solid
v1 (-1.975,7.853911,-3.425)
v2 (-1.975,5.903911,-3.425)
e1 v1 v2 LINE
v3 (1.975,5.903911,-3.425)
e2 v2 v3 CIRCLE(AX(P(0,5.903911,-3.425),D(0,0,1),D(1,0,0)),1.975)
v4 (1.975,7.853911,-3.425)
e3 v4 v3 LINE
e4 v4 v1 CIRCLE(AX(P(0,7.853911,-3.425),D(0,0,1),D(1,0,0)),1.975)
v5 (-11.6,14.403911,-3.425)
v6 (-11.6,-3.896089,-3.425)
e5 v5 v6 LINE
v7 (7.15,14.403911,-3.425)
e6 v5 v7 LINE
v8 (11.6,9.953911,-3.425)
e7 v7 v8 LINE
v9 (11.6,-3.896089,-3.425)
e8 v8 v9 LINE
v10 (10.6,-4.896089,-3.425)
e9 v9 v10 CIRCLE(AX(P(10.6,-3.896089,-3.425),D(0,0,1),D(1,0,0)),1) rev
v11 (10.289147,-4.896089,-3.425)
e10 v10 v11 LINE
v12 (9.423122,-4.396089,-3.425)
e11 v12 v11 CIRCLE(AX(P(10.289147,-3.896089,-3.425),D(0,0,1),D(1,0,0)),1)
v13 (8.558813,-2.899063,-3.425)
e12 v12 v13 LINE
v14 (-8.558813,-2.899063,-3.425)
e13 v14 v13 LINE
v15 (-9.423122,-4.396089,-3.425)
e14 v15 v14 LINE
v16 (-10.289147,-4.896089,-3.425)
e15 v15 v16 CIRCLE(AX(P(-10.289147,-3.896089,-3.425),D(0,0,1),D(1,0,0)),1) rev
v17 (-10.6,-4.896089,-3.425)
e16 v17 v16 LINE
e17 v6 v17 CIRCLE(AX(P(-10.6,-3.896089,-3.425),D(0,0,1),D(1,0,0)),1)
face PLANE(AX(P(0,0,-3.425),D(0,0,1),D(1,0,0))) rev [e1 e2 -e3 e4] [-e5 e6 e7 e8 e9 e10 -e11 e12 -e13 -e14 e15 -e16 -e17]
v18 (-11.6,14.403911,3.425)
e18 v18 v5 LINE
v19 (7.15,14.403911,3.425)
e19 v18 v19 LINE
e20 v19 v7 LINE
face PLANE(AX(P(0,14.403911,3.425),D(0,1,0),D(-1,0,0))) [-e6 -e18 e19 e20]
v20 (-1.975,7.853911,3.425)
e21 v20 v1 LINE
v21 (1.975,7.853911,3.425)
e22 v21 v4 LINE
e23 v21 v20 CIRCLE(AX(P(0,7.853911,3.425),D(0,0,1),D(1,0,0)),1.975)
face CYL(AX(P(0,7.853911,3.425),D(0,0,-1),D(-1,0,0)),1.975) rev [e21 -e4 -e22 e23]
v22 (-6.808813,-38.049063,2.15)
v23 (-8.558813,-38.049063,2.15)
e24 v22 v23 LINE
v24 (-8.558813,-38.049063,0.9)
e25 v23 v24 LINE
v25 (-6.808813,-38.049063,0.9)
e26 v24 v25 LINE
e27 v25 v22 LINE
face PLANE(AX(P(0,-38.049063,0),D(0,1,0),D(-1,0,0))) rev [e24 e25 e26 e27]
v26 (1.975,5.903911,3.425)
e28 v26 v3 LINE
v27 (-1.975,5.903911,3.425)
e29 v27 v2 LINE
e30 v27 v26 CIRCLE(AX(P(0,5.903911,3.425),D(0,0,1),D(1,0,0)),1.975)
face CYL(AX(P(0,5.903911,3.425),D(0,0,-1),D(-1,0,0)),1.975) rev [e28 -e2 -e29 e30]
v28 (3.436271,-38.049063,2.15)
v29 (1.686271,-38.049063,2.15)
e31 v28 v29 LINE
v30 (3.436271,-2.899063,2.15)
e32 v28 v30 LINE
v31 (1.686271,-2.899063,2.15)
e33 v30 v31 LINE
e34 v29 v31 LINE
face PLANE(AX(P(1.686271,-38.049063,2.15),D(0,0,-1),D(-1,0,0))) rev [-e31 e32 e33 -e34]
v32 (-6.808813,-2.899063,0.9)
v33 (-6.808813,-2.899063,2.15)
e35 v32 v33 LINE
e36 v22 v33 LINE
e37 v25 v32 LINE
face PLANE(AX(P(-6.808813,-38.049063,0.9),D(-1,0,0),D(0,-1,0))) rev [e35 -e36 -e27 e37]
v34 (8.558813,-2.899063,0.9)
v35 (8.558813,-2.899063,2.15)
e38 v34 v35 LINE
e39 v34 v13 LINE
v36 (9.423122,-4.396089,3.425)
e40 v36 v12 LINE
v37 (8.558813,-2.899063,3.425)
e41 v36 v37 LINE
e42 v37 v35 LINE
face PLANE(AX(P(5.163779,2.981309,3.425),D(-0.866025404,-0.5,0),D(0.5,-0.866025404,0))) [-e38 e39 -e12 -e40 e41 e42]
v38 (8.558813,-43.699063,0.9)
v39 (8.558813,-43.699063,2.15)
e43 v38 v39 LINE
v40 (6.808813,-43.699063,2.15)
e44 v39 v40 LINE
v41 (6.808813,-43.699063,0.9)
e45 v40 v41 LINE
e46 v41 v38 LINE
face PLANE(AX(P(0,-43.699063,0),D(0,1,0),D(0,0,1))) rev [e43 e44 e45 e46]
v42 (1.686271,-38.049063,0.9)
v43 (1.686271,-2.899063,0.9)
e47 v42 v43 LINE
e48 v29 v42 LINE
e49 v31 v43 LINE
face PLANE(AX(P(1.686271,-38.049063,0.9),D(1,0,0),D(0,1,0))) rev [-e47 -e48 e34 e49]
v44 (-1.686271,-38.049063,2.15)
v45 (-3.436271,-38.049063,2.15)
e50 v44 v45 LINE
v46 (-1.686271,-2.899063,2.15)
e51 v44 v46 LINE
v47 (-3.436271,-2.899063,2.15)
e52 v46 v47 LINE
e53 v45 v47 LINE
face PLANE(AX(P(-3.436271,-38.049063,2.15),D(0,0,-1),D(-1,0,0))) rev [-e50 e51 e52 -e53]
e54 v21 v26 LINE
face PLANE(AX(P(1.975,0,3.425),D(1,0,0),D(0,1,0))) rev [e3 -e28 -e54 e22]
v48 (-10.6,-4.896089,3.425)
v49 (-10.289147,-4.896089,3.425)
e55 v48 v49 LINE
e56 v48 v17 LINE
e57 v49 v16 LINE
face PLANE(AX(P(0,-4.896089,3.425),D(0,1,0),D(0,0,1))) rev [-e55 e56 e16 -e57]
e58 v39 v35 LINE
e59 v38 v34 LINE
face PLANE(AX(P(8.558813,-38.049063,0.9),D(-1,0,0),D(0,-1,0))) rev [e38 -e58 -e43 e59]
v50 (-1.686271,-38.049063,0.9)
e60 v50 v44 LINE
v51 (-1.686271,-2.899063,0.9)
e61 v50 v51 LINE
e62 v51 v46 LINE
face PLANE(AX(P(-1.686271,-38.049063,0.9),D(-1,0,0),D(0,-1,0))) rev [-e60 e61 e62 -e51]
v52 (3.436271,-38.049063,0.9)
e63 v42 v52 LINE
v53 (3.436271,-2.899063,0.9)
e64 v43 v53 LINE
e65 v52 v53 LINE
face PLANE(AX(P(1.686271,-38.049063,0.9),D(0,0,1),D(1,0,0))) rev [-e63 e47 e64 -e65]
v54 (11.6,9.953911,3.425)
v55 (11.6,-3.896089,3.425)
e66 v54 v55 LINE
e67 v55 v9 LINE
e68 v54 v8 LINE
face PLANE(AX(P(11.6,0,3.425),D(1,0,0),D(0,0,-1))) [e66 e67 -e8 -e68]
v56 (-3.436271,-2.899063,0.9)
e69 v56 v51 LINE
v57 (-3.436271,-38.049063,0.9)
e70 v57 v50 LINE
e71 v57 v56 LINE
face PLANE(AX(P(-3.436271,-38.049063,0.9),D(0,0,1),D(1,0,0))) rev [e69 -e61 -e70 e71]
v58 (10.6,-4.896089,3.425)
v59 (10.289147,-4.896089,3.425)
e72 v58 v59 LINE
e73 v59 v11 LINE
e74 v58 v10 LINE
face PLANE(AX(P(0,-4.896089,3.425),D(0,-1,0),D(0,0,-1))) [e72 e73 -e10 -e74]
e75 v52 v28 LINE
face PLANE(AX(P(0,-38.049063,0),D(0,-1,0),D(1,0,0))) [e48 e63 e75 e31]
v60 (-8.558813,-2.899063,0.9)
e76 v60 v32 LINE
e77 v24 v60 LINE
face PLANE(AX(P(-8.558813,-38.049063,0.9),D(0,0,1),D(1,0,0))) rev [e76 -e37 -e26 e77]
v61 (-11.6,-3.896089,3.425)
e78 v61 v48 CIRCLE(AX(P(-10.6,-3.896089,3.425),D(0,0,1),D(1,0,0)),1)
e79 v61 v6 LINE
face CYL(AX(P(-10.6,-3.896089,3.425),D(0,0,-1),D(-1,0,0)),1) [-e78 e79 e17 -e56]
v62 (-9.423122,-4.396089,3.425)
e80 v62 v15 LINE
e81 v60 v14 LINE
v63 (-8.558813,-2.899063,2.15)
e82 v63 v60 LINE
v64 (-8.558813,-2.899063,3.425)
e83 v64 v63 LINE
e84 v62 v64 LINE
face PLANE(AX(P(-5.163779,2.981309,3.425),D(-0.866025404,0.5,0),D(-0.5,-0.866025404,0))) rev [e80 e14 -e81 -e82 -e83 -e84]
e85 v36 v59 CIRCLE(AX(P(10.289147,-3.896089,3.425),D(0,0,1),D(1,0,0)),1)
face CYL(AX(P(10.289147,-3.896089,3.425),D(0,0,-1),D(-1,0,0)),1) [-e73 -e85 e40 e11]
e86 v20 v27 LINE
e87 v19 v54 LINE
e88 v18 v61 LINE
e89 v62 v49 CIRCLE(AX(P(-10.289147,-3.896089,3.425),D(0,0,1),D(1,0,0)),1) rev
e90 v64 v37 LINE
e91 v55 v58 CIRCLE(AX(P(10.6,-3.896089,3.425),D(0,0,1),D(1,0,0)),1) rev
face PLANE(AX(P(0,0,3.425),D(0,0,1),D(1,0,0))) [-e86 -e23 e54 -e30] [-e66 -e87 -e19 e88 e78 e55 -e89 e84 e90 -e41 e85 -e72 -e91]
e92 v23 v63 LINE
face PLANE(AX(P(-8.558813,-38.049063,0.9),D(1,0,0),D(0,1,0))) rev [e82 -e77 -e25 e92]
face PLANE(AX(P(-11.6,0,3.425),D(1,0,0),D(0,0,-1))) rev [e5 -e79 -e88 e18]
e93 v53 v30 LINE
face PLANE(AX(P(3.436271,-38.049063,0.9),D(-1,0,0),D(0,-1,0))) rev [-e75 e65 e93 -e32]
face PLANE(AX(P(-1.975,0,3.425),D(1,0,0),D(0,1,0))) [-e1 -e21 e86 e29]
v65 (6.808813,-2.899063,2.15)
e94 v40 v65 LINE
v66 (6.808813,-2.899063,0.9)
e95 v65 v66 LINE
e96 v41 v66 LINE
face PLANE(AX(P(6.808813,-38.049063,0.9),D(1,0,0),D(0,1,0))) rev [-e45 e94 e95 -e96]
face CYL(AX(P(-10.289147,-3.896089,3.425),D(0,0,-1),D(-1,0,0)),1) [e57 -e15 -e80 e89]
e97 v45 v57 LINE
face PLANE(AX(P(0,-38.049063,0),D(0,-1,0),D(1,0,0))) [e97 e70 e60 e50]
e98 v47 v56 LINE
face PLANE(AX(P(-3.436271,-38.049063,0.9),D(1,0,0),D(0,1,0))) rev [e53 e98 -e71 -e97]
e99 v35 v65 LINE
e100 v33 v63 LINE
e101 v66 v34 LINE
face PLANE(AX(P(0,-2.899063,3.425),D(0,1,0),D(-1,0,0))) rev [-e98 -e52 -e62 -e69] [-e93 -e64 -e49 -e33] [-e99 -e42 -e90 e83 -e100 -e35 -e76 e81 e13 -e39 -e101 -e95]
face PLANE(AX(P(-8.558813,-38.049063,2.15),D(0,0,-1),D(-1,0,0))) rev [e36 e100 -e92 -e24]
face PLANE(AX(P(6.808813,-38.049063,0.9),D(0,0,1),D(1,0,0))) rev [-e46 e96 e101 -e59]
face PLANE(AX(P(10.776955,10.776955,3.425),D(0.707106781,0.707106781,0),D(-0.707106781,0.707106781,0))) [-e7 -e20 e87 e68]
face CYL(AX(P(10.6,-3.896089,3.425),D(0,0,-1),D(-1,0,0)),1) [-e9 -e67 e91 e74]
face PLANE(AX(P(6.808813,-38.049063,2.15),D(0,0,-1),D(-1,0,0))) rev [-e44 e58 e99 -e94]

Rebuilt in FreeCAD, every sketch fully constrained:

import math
import FreeCAD as App
import Part
import Sketcher

V = App.Vector
Q = App.Units.Quantity

doc = App.newDocument("Part")
body = doc.addObject("PartDesign::Body", "Body")

sketch1 = body.newObject("Sketcher::SketchObject", "Sketch")
sketch1.AttachmentSupport = (doc.getObject("XY_Plane"), [""])
sketch1.MapMode = "FlatFace"
sketch1.addGeometry(Part.LineSegment(V(7.15, 14.4, 0), V(-11.6, 14.4, 0)), False)
sketch1.addGeometry(Part.LineSegment(V(-11.6, 14.4, 0), V(-11.6, -3.9, 0)), False)
sketch1.addGeometry(Part.ArcOfCircle(Part.Circle(V(-10.6, -3.9, 0), V(0, 0, 1), 1), math.radians(-180), math.radians(-90)), False)
sketch1.addGeometry(Part.LineSegment(V(-10.6, -4.9, 0), V(-10.29, -4.9, 0)), False)
sketch1.addGeometry(Part.ArcOfCircle(Part.Circle(V(-10.29, -3.9, 0), V(0, 0, 1), 1), math.radians(-90), math.radians(-30)), False)
sketch1.addGeometry(Part.LineSegment(V(-9.42, -4.4, 0), V(-8.56, -2.9, 0)), False)
sketch1.addGeometry(Part.LineSegment(V(-8.56, -2.9, 0), V(8.56, -2.9, 0)), False)
sketch1.addGeometry(Part.LineSegment(V(8.56, -2.9, 0), V(9.42, -4.4, 0)), False)
sketch1.addGeometry(Part.ArcOfCircle(Part.Circle(V(10.29, -3.9, 0), V(0, 0, 1), 1), math.radians(-150), math.radians(-90)), False)
sketch1.addGeometry(Part.LineSegment(V(10.29, -4.9, 0), V(10.6, -4.9, 0)), False)
sketch1.addGeometry(Part.ArcOfCircle(Part.Circle(V(10.6, -3.9, 0), V(0, 0, 1), 1), math.radians(-90), math.radians(0)), False)
sketch1.addGeometry(Part.LineSegment(V(11.6, -3.9, 0), V(11.6, 9.95, 0)), False)
sketch1.addGeometry(Part.LineSegment(V(11.6, 9.95, 0), V(7.15, 14.4, 0)), False)
sketch1.addGeometry(Part.LineSegment(V(-1.98, 5.9, 0), V(-1.98, 7.85, 0)), False)
sketch1.addGeometry(Part.ArcOfCircle(Part.Circle(V(0, 7.85, 0), V(0, 0, 1), 1.98), math.radians(0), math.radians(180)), False)
sketch1.addGeometry(Part.LineSegment(V(1.98, 7.85, 0), V(1.98, 5.9, 0)), False)
sketch1.addGeometry(Part.ArcOfCircle(Part.Circle(V(0, 5.9, 0), V(0, 0, 1), 1.98), math.radians(180), math.radians(360)), False)
sketch1.addConstraint(Sketcher.Constraint("Coincident", 0, 2, 1, 1))
sketch1.addConstraint(Sketcher.Constraint("Tangent", 1, 2, 2, 1))
sketch1.addConstraint(Sketcher.Constraint("Tangent", 2, 2, 3, 1))
sketch1.addConstraint(Sketcher.Constraint("Tangent", 3, 2, 4, 1))
sketch1.addConstraint(Sketcher.Constraint("Tangent", 4, 2, 5, 1))
sketch1.addConstraint(Sketcher.Constraint("Coincident", 5, 2, 6, 1))
sketch1.addConstraint(Sketcher.Constraint("Coincident", 6, 2, 7, 1))
sketch1.addConstraint(Sketcher.Constraint("Tangent", 7, 2, 8, 1))
sketch1.addConstraint(Sketcher.Constraint("Tangent", 8, 2, 9, 1))
sketch1.addConstraint(Sketcher.Constraint("Tangent", 9, 2, 10, 1))
sketch1.addConstraint(Sketcher.Constraint("Tangent", 10, 2, 11, 1))
sketch1.addConstraint(Sketcher.Constraint("Coincident", 11, 2, 12, 1))
sketch1.addConstraint(Sketcher.Constraint("Coincident", 12, 2, 0, 1))
sketch1.addConstraint(Sketcher.Constraint("Tangent", 13, 2, 14, 2))
sketch1.addConstraint(Sketcher.Constraint("Tangent", 14, 1, 15, 1))
sketch1.addConstraint(Sketcher.Constraint("Tangent", 15, 2, 16, 2))
sketch1.addConstraint(Sketcher.Constraint("Tangent", 16, 1, 13, 1))
sketch1.addConstraint(Sketcher.Constraint("Horizontal", 0))
sketch1.addConstraint(Sketcher.Constraint("Vertical", 1))
sketch1.addConstraint(Sketcher.Constraint("Horizontal", 3))
sketch1.addConstraint(Sketcher.Constraint("Horizontal", 6))
sketch1.addConstraint(Sketcher.Constraint("Horizontal", 9))
sketch1.addConstraint(Sketcher.Constraint("Vertical", 11))
sketch1.addConstraint(Sketcher.Constraint("Vertical", 13))
sketch1.addConstraint(Sketcher.Constraint("Vertical", 15))
sketch1.addConstraint(Sketcher.Constraint("Equal", 2, 4))
sketch1.addConstraint(Sketcher.Constraint("Equal", 4, 8))
sketch1.addConstraint(Sketcher.Constraint("Equal", 8, 10))
sketch1.addConstraint(Sketcher.Constraint("Symmetric", 4, 3, 8, 3, -2))
sketch1.addConstraint(Sketcher.Constraint("PointOnObject", 14, 3, -2))
sketch1.addConstraint(Sketcher.Constraint("Horizontal", 4, 2, 7, 2))
sketch1.addConstraint(Sketcher.Constraint("Equal", 3, 9))
sketch1.addConstraint(Sketcher.Constraint("Radius", 2, Q("1 mm")))
sketch1.addConstraint(Sketcher.Constraint("Angle", 5, Q("60 deg")))
sketch1.addConstraint(Sketcher.Constraint("Angle", 12, Q("135 deg")))
sketch1.addConstraint(Sketcher.Constraint("DistanceY", 1, 2, 1, 1, Q("18.3 mm")))
sketch1.addConstraint(Sketcher.Constraint("Radius", 14, Q("1.975 mm")))
sketch1.addConstraint(Sketcher.Constraint("DistanceX", 0, 2, 0, 1, Q("18.75 mm")))
sketch1.addConstraint(Sketcher.Constraint("DistanceY", 11, 1, 11, 2, Q("13.85 mm")))
sketch1.addConstraint(Sketcher.Constraint("DistanceY", 13, 1, 13, 2, Q("1.95 mm")))
sketch1.addConstraint(Sketcher.Constraint("DistanceY", 4, 3, 16, 3, Q("9.8 mm")))
sketch1.addConstraint(Sketcher.Constraint("DistanceX", 3, 1, 3, 2, Q("0.310853 mm")))
sketch1.addConstraint(Sketcher.Constraint("DistanceX", 6, 1, 6, 2, Q("17.117626 mm")))
sketch1.addConstraint(Sketcher.Constraint("DistanceY", 2, 3, -1, 1, Q("3.896089 mm")))
pad1 = body.newObject("PartDesign::Pad", "Pad")
pad1.Profile = sketch1
pad1.Length = 6.85
pad1.Midplane = True

sketch2 = body.newObject("Sketcher::SketchObject", "Sketch001")
sketch2.AttachmentSupport = (doc.getObject("XZ_Plane"), [""])
sketch2.MapMode = "FlatFace"
sketch2.AttachmentOffset = App.Placement(V(0, 0, 2.899063), App.Rotation())
sketch2.addGeometry(Part.LineSegment(V(-8.6, 2.1, 0), V(-8.6, 0.9, 0)), False)
sketch2.addGeometry(Part.LineSegment(V(-8.6, 0.9, 0), V(-6.8, 0.9, 0)), False)
sketch2.addGeometry(Part.LineSegment(V(-6.8, 0.9, 0), V(-6.8, 2.1, 0)), False)
sketch2.addGeometry(Part.LineSegment(V(-6.8, 2.1, 0), V(-8.6, 2.1, 0)), False)
sketch2.addGeometry(Part.LineSegment(V(-3.4, 2.1, 0), V(-3.4, 0.9, 0)), False)
sketch2.addGeometry(Part.LineSegment(V(-3.4, 0.9, 0), V(-1.7, 0.9, 0)), False)
sketch2.addGeometry(Part.LineSegment(V(-1.7, 0.9, 0), V(-1.7, 2.1, 0)), False)
sketch2.addGeometry(Part.LineSegment(V(-1.7, 2.1, 0), V(-3.4, 2.1, 0)), False)
sketch2.addGeometry(Part.LineSegment(V(1.7, 2.1, 0), V(1.7, 0.9, 0)), False)
sketch2.addGeometry(Part.LineSegment(V(1.7, 0.9, 0), V(3.4, 0.9, 0)), False)
sketch2.addGeometry(Part.LineSegment(V(3.4, 0.9, 0), V(3.4, 2.1, 0)), False)
sketch2.addGeometry(Part.LineSegment(V(3.4, 2.1, 0), V(1.7, 2.1, 0)), False)
sketch2.addGeometry(Part.LineSegment(V(6.8, 2.1, 0), V(6.8, 0.9, 0)), False)
sketch2.addGeometry(Part.LineSegment(V(6.8, 0.9, 0), V(8.6, 0.9, 0)), False)
sketch2.addGeometry(Part.LineSegment(V(8.6, 0.9, 0), V(8.6, 2.1, 0)), False)
sketch2.addGeometry(Part.LineSegment(V(8.6, 2.1, 0), V(6.8, 2.1, 0)), False)
sketch2.addConstraint(Sketcher.Constraint("Coincident", 0, 2, 1, 1))
sketch2.addConstraint(Sketcher.Constraint("Coincident", 1, 2, 2, 1))
sketch2.addConstraint(Sketcher.Constraint("Coincident", 2, 2, 3, 1))
sketch2.addConstraint(Sketcher.Constraint("Coincident", 3, 2, 0, 1))
sketch2.addConstraint(Sketcher.Constraint("Coincident", 4, 2, 5, 1))
sketch2.addConstraint(Sketcher.Constraint("Coincident", 5, 2, 6, 1))
sketch2.addConstraint(Sketcher.Constraint("Coincident", 6, 2, 7, 1))
sketch2.addConstraint(Sketcher.Constraint("Coincident", 7, 2, 4, 1))
sketch2.addConstraint(Sketcher.Constraint("Coincident", 8, 2, 9, 1))
sketch2.addConstraint(Sketcher.Constraint("Coincident", 9, 2, 10, 1))
sketch2.addConstraint(Sketcher.Constraint("Coincident", 10, 2, 11, 1))
sketch2.addConstraint(Sketcher.Constraint("Coincident", 11, 2, 8, 1))
sketch2.addConstraint(Sketcher.Constraint("Coincident", 12, 2, 13, 1))
sketch2.addConstraint(Sketcher.Constraint("Coincident", 13, 2, 14, 1))
sketch2.addConstraint(Sketcher.Constraint("Coincident", 14, 2, 15, 1))
sketch2.addConstraint(Sketcher.Constraint("Coincident", 15, 2, 12, 1))
sketch2.addConstraint(Sketcher.Constraint("Vertical", 0))
sketch2.addConstraint(Sketcher.Constraint("Horizontal", 1))
sketch2.addConstraint(Sketcher.Constraint("Vertical", 2))
sketch2.addConstraint(Sketcher.Constraint("Horizontal", 3))
sketch2.addConstraint(Sketcher.Constraint("Vertical", 4))
sketch2.addConstraint(Sketcher.Constraint("Horizontal", 5))
sketch2.addConstraint(Sketcher.Constraint("Vertical", 6))
sketch2.addConstraint(Sketcher.Constraint("Horizontal", 7))
sketch2.addConstraint(Sketcher.Constraint("Vertical", 8))
sketch2.addConstraint(Sketcher.Constraint("Horizontal", 9))
sketch2.addConstraint(Sketcher.Constraint("Vertical", 10))
sketch2.addConstraint(Sketcher.Constraint("Horizontal", 11))
sketch2.addConstraint(Sketcher.Constraint("Vertical", 12))
sketch2.addConstraint(Sketcher.Constraint("Horizontal", 13))
sketch2.addConstraint(Sketcher.Constraint("Vertical", 14))
sketch2.addConstraint(Sketcher.Constraint("Horizontal", 15))
sketch2.addConstraint(Sketcher.Constraint("Symmetric", 5, 2, 8, 2, -2))
sketch2.addConstraint(Sketcher.Constraint("Symmetric", 7, 2, 10, 2, -2))
sketch2.addConstraint(Sketcher.Constraint("Symmetric", 1, 2, 12, 2, -2))
sketch2.addConstraint(Sketcher.Constraint("Symmetric", 3, 2, 14, 2, -2))
sketch2.addConstraint(Sketcher.Constraint("Horizontal", 1, 2, 4, 2))
sketch2.addConstraint(Sketcher.Constraint("Horizontal", 3, 2, 6, 2))
sketch2.addConstraint(Sketcher.Constraint("Equal", 3, 5))
sketch2.addConstraint(Sketcher.Constraint("DistanceX", 1, 1, 1, 2, Q("1.75 mm")))
sketch2.addConstraint(Sketcher.Constraint("DistanceY", 0, 2, 0, 1, Q("1.25 mm")))
sketch2.addConstraint(Sketcher.Constraint("DistanceY", -1, 1, 0, 2, Q("0.9 mm")))
sketch2.addConstraint(Sketcher.Constraint("DistanceX", 4, 2, -1, 1, Q("3.436271 mm")))
sketch2.addConstraint(Sketcher.Constraint("DistanceX", 0, 2, -1, 1, Q("8.558813 mm")))
pad2 = body.newObject("PartDesign::Pad", "Pad001")
pad2.Profile = sketch2
pad2.Length = 35.15

sketch3 = body.newObject("Sketcher::SketchObject", "Sketch002")
sketch3.AttachmentSupport = (doc.getObject("XZ_Plane"), [""])
sketch3.MapMode = "FlatFace"
sketch3.AttachmentOffset = App.Placement(V(0, 0, 38.049063), App.Rotation())
sketch3.addGeometry(Part.LineSegment(V(6.8, 2.1, 0), V(6.8, 0.9, 0)), False)
sketch3.addGeometry(Part.LineSegment(V(6.8, 0.9, 0), V(8.6, 0.9, 0)), False)
sketch3.addGeometry(Part.LineSegment(V(8.6, 0.9, 0), V(8.6, 2.1, 0)), False)
sketch3.addGeometry(Part.LineSegment(V(8.6, 2.1, 0), V(6.8, 2.1, 0)), False)
sketch3.addConstraint(Sketcher.Constraint("Coincident", 0, 2, 1, 1))
sketch3.addConstraint(Sketcher.Constraint("Coincident", 1, 2, 2, 1))
sketch3.addConstraint(Sketcher.Constraint("Coincident", 2, 2, 3, 1))
sketch3.addConstraint(Sketcher.Constraint("Coincident", 3, 2, 0, 1))
sketch3.addConstraint(Sketcher.Constraint("Vertical", 0))
sketch3.addConstraint(Sketcher.Constraint("Horizontal", 1))
sketch3.addConstraint(Sketcher.Constraint("Vertical", 2))
sketch3.addConstraint(Sketcher.Constraint("Horizontal", 3))
sketch3.addConstraint(Sketcher.Constraint("DistanceX", 1, 1, 1, 2, Q("1.75 mm")))
sketch3.addConstraint(Sketcher.Constraint("DistanceY", 0, 2, 0, 1, Q("1.25 mm")))
sketch3.addConstraint(Sketcher.Constraint("DistanceY", -1, 1, 0, 2, Q("0.9 mm")))
sketch3.addConstraint(Sketcher.Constraint("DistanceX", -1, 1, 0, 2, Q("6.808813 mm")))
pad3 = body.newObject("PartDesign::Pad", "Pad002")
pad3.Profile = sketch3
pad3.Length = 5.65

doc.recompute()
